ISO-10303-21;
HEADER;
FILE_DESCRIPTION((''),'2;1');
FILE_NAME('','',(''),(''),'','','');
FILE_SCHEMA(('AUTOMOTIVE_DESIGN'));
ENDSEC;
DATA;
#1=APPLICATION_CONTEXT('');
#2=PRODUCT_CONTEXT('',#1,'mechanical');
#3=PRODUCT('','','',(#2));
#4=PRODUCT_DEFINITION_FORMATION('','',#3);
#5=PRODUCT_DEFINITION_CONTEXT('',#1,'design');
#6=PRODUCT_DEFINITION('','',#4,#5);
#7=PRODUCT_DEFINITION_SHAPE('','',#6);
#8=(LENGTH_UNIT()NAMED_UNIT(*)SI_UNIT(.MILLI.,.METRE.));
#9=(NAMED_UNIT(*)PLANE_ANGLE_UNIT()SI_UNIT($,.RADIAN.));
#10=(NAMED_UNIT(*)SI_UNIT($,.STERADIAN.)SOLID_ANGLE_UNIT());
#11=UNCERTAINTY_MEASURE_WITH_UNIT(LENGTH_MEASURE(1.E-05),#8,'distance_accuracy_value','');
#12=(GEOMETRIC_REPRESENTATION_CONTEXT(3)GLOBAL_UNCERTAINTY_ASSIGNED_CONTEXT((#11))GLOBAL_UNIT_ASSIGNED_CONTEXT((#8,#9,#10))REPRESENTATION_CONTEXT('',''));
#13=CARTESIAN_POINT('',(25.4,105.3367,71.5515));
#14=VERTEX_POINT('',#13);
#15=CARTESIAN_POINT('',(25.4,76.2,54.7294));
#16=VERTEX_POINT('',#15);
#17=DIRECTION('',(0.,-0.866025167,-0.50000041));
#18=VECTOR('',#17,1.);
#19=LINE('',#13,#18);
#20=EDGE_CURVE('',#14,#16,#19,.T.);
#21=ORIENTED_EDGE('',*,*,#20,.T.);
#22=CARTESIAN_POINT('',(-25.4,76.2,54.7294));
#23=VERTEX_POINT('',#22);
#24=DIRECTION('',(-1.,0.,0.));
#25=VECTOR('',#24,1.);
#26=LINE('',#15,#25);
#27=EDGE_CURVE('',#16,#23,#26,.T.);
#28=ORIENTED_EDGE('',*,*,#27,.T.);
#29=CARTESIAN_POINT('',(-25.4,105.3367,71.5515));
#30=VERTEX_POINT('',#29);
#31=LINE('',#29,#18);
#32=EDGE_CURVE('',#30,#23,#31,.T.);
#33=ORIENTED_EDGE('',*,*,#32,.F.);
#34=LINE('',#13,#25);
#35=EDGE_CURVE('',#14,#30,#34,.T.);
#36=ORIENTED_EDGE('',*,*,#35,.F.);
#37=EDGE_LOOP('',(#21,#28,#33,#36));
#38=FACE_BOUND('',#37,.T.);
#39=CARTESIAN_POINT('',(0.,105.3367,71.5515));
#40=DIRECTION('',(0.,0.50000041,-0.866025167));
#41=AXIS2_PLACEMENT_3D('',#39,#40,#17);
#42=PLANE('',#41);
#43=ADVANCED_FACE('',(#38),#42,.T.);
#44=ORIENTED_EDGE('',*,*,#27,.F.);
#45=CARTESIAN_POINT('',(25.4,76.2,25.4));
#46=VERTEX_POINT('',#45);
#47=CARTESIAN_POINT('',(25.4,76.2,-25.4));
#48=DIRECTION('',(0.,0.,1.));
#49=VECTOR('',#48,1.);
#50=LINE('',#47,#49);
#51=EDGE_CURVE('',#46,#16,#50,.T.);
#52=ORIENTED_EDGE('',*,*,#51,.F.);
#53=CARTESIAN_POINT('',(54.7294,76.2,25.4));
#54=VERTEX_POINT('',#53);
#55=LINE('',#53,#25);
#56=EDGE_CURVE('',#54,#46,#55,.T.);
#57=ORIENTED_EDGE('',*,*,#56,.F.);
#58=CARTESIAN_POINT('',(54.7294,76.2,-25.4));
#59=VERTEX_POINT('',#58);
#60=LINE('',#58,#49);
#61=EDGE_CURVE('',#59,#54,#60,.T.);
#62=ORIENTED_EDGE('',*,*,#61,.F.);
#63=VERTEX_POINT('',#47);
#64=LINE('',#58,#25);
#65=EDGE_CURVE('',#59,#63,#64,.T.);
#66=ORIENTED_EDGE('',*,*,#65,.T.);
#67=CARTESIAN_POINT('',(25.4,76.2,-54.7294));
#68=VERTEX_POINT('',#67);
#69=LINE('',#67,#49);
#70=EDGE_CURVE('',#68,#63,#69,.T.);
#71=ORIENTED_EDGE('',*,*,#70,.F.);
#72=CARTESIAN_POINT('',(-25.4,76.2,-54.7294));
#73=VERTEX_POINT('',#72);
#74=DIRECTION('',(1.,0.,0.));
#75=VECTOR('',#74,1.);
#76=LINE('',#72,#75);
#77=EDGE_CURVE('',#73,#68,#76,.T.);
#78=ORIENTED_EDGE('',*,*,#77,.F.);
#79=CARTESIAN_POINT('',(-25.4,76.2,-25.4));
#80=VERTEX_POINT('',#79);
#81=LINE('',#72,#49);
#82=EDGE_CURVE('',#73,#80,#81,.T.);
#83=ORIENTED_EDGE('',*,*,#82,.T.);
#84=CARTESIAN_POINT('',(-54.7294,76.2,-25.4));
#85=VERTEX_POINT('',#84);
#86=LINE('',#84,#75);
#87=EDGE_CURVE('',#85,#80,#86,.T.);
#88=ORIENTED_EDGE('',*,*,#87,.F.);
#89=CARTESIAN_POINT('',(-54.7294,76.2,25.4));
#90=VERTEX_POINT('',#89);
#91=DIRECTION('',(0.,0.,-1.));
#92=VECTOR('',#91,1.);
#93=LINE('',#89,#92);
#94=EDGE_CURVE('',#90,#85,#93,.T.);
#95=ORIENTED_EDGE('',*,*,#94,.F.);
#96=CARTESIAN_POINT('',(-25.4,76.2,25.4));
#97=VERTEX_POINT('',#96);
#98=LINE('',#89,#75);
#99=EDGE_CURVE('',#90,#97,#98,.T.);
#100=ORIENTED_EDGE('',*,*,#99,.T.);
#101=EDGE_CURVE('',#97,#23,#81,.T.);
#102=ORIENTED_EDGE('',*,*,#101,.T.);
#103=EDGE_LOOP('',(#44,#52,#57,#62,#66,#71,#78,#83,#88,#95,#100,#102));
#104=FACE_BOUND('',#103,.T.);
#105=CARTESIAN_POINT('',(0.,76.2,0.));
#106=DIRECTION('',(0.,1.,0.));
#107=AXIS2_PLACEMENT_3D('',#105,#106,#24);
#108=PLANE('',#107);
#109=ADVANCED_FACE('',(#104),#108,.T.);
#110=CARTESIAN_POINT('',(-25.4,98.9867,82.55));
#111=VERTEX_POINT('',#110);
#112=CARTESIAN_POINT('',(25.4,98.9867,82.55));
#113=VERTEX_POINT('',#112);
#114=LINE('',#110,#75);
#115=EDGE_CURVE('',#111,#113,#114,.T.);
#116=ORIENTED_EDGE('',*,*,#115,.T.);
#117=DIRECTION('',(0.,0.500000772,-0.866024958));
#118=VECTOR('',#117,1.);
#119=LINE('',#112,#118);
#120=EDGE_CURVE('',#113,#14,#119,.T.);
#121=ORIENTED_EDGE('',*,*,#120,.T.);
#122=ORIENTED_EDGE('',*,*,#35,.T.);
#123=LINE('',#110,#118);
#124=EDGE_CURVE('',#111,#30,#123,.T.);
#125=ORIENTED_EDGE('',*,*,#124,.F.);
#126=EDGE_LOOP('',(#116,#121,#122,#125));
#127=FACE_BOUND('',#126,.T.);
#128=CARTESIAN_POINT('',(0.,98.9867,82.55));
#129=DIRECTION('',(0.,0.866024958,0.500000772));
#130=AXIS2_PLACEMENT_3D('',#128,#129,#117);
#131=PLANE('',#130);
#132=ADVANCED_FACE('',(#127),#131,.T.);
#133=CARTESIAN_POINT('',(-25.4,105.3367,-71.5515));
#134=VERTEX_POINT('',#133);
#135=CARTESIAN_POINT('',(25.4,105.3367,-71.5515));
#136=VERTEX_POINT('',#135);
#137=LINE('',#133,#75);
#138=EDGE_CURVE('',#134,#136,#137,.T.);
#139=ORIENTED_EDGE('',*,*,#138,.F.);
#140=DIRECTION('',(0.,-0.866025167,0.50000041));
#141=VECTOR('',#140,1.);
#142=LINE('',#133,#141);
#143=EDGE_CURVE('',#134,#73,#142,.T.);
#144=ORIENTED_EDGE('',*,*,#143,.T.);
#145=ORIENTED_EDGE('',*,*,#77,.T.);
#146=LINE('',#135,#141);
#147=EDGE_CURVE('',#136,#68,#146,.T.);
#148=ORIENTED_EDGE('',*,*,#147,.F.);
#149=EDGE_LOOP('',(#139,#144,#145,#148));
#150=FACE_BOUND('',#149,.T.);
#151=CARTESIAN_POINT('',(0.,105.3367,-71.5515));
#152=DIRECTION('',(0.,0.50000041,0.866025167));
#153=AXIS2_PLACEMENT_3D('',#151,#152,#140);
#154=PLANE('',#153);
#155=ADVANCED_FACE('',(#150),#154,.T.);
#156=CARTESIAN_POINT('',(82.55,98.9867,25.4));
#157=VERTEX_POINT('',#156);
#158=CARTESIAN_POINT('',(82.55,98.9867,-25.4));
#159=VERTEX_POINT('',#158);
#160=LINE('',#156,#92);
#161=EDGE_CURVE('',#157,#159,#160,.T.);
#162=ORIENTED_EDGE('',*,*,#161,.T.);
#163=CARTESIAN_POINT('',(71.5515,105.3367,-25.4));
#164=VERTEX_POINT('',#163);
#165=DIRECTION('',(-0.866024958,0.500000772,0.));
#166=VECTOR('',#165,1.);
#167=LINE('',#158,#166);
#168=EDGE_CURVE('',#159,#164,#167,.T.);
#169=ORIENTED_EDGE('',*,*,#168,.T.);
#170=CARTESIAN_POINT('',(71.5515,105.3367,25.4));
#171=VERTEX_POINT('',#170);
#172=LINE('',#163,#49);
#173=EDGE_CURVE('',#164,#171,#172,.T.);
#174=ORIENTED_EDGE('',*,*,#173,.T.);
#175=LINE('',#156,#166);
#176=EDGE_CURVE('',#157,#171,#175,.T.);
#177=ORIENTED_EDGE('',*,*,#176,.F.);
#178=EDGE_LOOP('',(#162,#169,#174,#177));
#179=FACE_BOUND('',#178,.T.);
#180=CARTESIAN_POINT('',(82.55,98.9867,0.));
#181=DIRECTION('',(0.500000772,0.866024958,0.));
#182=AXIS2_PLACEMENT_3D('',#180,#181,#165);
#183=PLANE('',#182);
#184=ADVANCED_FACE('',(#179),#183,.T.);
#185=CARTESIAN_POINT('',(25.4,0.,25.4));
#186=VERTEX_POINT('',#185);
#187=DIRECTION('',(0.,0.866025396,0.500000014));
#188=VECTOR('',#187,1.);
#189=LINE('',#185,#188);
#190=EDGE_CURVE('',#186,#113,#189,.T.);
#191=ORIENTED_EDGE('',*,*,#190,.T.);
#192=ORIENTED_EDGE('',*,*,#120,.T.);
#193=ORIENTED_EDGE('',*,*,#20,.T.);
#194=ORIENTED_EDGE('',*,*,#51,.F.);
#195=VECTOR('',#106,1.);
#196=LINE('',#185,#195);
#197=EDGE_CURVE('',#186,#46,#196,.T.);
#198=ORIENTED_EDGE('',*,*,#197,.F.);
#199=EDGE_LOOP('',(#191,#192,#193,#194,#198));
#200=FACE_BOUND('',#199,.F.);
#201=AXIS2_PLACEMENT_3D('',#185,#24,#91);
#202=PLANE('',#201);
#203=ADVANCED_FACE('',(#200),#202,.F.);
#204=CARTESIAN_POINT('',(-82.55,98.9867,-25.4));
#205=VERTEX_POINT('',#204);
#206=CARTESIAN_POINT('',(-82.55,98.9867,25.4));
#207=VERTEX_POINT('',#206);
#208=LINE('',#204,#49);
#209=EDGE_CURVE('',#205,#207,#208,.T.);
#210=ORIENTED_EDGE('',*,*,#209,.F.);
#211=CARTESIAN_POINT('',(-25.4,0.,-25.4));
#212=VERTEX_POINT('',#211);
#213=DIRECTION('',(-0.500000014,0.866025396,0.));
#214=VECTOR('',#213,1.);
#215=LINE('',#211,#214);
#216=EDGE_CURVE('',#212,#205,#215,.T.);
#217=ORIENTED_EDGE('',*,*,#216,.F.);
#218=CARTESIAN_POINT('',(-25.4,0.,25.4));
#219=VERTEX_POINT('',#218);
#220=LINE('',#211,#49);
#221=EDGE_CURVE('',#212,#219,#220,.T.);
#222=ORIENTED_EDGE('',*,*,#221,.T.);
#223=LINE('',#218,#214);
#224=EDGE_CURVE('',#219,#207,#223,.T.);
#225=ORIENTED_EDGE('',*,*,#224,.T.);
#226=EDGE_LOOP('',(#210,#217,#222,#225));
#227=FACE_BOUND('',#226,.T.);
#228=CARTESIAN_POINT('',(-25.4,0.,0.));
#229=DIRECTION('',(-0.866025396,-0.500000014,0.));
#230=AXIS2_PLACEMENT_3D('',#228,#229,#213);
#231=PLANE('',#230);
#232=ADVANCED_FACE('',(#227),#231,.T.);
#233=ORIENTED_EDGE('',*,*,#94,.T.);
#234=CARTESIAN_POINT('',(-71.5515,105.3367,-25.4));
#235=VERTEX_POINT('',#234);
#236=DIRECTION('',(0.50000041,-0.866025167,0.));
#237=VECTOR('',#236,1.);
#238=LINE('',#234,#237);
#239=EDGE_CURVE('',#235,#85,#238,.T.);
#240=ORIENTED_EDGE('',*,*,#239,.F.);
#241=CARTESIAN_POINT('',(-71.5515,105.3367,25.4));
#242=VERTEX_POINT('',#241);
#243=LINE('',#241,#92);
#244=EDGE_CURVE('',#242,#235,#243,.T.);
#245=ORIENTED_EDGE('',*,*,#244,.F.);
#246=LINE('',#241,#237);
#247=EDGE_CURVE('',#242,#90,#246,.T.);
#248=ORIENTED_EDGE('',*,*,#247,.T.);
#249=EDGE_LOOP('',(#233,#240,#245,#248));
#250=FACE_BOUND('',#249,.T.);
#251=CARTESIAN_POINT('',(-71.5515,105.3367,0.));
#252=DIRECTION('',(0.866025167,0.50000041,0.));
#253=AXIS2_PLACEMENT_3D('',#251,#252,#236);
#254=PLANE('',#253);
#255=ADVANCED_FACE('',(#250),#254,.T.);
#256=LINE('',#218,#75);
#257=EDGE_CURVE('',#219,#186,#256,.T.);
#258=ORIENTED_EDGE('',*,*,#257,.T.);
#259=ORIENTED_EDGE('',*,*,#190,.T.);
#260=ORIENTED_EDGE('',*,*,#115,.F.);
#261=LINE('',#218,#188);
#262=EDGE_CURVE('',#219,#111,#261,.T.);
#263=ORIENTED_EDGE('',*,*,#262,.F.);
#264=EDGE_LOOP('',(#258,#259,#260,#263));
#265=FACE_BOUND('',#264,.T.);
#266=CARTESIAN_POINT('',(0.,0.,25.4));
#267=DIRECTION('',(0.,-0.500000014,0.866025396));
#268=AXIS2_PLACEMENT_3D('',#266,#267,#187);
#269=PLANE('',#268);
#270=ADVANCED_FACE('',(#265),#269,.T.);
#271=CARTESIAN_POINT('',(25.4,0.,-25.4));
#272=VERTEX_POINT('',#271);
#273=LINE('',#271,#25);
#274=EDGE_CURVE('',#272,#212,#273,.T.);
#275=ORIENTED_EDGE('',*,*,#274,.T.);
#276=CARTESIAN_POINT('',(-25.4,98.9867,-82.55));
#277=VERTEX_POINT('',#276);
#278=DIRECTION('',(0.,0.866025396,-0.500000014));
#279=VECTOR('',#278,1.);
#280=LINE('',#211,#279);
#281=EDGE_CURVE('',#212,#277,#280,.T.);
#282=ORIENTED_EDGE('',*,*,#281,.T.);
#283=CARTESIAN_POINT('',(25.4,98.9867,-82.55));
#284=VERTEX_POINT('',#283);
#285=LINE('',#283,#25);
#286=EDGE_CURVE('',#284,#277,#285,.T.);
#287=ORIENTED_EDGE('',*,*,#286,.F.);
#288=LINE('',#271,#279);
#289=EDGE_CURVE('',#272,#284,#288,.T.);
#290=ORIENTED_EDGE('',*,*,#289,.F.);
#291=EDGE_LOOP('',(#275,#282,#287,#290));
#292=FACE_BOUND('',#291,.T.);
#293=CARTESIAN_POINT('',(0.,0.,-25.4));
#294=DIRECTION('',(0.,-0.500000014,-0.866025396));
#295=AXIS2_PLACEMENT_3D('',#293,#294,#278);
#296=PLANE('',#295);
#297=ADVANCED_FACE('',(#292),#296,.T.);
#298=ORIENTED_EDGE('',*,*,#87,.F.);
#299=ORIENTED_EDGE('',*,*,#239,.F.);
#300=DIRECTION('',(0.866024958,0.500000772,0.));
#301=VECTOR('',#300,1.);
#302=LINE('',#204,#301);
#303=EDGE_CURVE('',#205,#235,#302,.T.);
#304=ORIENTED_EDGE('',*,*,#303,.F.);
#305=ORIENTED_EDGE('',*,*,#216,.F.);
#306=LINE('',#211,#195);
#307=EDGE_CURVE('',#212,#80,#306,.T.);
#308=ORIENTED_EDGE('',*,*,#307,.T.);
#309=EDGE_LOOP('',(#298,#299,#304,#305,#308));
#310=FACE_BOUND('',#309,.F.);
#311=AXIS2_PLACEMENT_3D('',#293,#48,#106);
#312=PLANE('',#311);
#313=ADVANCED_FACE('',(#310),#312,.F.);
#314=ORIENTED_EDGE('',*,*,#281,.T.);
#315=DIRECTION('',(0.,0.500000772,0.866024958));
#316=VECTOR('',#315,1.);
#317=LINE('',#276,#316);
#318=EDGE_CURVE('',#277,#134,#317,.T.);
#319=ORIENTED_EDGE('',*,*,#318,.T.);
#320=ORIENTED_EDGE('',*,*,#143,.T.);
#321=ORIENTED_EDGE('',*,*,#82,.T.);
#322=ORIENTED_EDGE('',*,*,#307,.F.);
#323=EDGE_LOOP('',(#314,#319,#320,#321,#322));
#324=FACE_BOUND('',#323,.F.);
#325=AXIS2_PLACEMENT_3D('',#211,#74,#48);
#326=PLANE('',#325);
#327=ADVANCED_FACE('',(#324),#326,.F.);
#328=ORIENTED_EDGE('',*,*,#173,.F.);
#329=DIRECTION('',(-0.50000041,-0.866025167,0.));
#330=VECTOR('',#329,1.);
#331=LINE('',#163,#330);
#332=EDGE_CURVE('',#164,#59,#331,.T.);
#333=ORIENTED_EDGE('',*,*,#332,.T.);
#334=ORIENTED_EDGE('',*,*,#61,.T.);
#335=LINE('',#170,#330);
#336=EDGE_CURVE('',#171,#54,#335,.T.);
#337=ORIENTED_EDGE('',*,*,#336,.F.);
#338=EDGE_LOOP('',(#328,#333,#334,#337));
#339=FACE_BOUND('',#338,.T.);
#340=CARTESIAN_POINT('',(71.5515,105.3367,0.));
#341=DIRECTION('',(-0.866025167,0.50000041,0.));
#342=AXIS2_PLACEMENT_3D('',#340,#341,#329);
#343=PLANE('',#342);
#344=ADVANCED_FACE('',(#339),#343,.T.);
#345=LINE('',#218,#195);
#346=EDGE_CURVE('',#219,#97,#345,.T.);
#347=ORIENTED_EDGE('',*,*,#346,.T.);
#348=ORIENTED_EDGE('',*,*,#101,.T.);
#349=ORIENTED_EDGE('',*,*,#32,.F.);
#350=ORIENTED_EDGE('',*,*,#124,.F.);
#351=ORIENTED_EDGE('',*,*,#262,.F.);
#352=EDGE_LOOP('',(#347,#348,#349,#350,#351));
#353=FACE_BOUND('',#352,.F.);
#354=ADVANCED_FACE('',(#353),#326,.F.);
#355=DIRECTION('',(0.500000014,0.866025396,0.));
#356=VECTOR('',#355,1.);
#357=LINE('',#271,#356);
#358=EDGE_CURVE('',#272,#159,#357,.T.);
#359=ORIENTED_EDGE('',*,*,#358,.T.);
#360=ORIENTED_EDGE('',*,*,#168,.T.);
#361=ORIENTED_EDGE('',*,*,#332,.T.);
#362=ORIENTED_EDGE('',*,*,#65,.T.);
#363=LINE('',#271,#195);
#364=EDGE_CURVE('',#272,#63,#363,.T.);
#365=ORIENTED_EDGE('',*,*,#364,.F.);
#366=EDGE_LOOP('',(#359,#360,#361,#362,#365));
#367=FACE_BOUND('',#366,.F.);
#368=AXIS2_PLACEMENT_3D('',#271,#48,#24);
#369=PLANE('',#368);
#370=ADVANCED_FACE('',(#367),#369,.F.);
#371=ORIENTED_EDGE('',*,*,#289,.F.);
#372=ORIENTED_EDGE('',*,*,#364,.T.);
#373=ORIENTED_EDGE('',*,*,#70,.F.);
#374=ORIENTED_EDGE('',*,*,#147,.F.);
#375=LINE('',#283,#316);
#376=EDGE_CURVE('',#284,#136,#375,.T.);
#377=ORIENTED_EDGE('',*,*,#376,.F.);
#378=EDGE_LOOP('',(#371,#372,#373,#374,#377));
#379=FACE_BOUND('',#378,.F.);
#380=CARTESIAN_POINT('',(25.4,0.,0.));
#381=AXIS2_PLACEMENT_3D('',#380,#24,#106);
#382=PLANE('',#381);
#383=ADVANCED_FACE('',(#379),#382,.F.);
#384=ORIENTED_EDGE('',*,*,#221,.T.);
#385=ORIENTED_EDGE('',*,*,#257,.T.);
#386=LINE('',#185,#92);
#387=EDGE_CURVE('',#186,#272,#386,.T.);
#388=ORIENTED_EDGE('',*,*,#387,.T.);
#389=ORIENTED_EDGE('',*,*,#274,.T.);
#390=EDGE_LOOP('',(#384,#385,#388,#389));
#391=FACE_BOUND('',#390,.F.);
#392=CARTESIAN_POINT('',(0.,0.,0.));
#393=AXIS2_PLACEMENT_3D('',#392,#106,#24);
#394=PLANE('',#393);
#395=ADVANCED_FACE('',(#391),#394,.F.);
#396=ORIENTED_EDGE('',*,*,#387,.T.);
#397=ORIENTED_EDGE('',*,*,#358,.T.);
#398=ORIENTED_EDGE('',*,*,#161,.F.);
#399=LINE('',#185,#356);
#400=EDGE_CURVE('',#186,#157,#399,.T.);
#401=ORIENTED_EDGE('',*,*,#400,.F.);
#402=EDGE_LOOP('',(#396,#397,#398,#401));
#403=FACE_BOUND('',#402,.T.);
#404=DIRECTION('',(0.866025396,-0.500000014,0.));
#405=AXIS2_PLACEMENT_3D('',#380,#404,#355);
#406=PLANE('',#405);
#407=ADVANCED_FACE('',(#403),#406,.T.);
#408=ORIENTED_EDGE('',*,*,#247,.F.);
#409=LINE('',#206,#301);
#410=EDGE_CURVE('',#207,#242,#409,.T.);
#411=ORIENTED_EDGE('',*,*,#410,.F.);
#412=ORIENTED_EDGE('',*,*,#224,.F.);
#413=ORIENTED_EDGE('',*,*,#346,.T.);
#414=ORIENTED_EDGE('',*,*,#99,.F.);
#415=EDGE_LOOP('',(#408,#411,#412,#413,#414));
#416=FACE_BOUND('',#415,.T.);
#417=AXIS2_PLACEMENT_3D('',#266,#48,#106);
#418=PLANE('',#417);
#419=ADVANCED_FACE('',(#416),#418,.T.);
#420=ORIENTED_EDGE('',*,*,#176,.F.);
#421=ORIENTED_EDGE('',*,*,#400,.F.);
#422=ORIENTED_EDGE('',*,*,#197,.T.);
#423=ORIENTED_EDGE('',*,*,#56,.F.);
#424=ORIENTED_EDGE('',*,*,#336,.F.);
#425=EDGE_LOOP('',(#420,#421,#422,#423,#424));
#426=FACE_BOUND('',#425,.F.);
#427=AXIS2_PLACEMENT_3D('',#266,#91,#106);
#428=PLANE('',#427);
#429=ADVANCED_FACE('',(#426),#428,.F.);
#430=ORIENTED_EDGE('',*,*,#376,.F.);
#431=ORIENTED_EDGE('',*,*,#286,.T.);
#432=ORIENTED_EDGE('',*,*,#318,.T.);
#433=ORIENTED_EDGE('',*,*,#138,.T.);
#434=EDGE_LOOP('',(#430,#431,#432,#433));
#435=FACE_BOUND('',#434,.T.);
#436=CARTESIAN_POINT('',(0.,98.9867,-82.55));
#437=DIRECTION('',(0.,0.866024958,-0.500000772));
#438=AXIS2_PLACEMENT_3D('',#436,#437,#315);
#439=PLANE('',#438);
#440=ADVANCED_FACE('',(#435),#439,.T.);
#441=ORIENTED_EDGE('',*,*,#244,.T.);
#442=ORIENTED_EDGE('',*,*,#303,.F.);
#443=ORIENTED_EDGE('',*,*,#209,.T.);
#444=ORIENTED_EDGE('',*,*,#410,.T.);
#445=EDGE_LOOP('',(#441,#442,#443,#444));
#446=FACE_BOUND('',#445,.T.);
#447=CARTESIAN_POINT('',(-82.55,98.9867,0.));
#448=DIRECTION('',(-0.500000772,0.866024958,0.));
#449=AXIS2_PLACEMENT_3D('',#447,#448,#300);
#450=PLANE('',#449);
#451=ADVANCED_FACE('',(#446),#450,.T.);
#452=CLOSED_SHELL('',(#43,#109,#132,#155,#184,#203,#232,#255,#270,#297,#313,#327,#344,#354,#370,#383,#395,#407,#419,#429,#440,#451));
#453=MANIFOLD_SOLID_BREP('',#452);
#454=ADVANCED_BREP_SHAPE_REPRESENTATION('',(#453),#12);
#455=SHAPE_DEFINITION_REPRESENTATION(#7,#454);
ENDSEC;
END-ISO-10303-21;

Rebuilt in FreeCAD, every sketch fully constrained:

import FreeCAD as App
import Part
import Sketcher
Q = App.Units.Quantity


def add_polygon(sketch, points):
    """Adds a closed chain of lines whose ends are joined by coincident constraints."""
    first, n = sketch.GeometryCount, len(points)
    for a, b in zip(points, points[1:] + points[:1]):
        sketch.addGeometry(Part.LineSegment(App.Vector(*a, 0), App.Vector(*b, 0)), False)
    for i in range(n):
        sketch.addConstraint(Sketcher.Constraint("Coincident", first + i, 2, first + (i + 1) % n, 1))

doc = App.newDocument("Part")
body = doc.addObject("PartDesign::Body", "Body")

# Sketch on XZ plane
sketch1 = body.newObject("Sketcher::SketchObject", "Sketch")
sketch1.AttachmentSupport = (doc.getObject("XZ_Plane"), [""])
sketch1.MapMode = "FlatFace"
add_polygon(sketch1, [(25.4, 25.4), (25.4, -25.4), (-25.4, -25.4), (-25.4, 25.4)])  # lines 0-3
sketch1.addConstraint([
    Sketcher.Constraint("Vertical", 0),
    Sketcher.Constraint("Horizontal", 1),
    Sketcher.Constraint("Vertical", 2),
    Sketcher.Constraint("Horizontal", 3),
    Sketcher.Constraint("Symmetric", 0, 2, 2, 2, -1, 1),
    Sketcher.Constraint("Equal", 3, 0),
    Sketcher.Constraint("DistanceX", 1, 2, 1, 1, Q("2 in")),
])
pad1 = body.newObject("PartDesign::Pad", "Pad")
pad1.Profile = sketch1
pad1.Length = Q("3 in")
pad1.Reversed = True

# Sketch on YZ plane
sketch2 = body.newObject("Sketcher::SketchObject", "Sketch001")
sketch2.AttachmentSupport = (doc.getObject("YZ_Plane"), [""])
sketch2.MapMode = "FlatFace"
add_polygon(sketch2, [(105.3367, 71.5515), (98.9867, 82.55), (0, 25.4), (76.2, 25.4), (76.2, 54.7294)])  # lines 0-4
sketch2.addConstraint([
    Sketcher.Constraint("Horizontal", 2),
    Sketcher.Constraint("Vertical", 3),
    Sketcher.Constraint("PointOnObject", 1, 2, -2),
    Sketcher.Constraint("Perpendicular", 0, 1),
    Sketcher.Constraint("Parallel", 1, 4),
    Sketcher.Constraint("Distance", 0, Q("0.5 in")),
    Sketcher.Constraint("Distance", 1, Q("4.5 in")),
    Sketcher.Constraint("DistanceX", 2, 1, 2, 2, Q("3 in")),
    Sketcher.Constraint("DistanceY", -1, 1, 1, 2, Q("1 in")),
    Sketcher.Constraint("Angle", 0, Q("120 deg")),
])
pad2 = body.newObject("PartDesign::Pad", "Pad001")
pad2.Profile = sketch2
pad2.Length = Q("2 in")
pad2.Midplane = True
doc.recompute()

polarpattern = body.newObject("PartDesign::PolarPattern", "PolarPattern")
polarpattern.Originals = [pad2]
polarpattern.Axis = (doc.getObject("Y_Axis"), [""])
polarpattern.Angle = 360
polarpattern.Occurrences = 4
body.Tip = polarpattern

doc.recompute()
